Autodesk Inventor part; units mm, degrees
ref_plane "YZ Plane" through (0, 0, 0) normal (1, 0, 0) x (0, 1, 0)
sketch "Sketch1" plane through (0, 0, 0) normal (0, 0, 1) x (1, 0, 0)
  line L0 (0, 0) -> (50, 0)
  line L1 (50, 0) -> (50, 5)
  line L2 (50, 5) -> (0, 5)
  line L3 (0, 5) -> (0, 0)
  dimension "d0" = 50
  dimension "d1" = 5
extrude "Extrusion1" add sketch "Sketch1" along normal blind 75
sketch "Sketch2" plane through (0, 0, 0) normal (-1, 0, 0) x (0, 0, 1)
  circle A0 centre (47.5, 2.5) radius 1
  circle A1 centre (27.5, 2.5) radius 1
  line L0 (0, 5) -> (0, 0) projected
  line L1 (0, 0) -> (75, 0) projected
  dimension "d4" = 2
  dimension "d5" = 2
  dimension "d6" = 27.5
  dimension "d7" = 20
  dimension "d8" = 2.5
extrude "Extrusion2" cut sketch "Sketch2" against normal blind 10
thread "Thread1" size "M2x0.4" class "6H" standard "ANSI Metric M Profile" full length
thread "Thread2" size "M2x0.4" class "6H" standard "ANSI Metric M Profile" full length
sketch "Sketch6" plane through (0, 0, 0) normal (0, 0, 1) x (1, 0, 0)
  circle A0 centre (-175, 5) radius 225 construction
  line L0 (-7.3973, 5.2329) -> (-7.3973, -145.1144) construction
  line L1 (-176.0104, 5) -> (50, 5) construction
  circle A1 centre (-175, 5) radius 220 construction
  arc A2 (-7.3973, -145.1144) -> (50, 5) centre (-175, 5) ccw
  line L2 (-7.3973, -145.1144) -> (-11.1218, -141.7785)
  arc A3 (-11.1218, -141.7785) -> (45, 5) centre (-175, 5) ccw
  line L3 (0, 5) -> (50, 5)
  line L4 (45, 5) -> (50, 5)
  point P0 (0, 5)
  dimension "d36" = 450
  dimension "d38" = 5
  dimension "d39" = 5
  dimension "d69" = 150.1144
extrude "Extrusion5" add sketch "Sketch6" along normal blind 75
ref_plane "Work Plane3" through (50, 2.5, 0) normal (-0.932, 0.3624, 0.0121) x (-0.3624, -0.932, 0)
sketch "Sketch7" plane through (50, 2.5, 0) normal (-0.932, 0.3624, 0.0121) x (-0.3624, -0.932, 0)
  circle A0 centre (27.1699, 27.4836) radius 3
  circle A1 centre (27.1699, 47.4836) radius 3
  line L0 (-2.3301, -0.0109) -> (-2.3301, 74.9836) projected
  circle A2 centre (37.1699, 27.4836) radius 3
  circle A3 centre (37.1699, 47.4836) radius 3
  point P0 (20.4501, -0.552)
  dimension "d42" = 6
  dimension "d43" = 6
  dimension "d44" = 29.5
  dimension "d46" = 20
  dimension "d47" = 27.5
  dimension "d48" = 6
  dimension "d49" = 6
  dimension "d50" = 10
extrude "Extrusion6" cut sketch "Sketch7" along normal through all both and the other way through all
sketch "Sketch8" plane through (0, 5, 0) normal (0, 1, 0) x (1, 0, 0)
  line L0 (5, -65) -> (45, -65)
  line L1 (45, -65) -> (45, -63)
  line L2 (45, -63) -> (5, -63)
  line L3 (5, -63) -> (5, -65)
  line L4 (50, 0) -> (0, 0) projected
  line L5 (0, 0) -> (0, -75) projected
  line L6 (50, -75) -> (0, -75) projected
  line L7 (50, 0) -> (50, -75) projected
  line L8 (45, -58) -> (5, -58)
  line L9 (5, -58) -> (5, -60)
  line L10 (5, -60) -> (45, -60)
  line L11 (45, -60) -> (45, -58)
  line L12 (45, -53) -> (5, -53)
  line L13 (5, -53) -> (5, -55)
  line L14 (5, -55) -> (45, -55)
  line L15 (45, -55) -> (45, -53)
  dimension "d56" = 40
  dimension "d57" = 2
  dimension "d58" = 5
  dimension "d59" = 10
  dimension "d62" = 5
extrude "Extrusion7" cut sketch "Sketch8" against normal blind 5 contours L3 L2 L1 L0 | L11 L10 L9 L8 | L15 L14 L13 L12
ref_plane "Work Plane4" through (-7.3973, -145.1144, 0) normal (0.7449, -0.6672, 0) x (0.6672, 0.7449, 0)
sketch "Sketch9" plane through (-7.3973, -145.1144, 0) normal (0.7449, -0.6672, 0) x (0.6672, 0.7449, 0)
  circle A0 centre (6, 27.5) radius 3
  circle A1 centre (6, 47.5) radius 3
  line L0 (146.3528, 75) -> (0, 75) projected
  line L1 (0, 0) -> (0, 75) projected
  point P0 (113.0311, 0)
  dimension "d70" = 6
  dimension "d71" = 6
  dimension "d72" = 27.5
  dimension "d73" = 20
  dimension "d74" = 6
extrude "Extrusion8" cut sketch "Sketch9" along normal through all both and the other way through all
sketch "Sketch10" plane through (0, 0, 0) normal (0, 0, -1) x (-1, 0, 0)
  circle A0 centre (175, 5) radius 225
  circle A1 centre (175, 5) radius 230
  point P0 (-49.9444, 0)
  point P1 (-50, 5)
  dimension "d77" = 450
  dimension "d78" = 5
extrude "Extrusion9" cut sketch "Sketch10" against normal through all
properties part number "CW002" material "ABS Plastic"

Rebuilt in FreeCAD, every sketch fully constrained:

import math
import FreeCAD as App
import Part
import Sketcher
from FreeCAD import Vector
Q = App.Units.Quantity


def add_polygon(sketch, points):
    """Adds a closed chain of lines whose ends are joined by coincident constraints."""
    first, n = sketch.GeometryCount, len(points)
    for a, b in zip(points, points[1:] + points[:1]):
        sketch.addGeometry(Part.LineSegment(App.Vector(*a, 0), App.Vector(*b, 0)), False)
    for i in range(n):
        sketch.addConstraint(Sketcher.Constraint("Coincident", first + i, 2, first + (i + 1) % n, 1))

doc = App.newDocument("Part")
body = doc.addObject("PartDesign::Body", "Body")

sketch1 = body.newObject("Sketcher::SketchObject", "Sketch")
sketch1.AttachmentSupport = (doc.getObject("XY_Plane"), [""])
sketch1.MapMode = "FlatFace"
add_polygon(sketch1, [(0, 5), (0, 0), (50, 0), (50, 5)])
sketch1.addConstraint(Sketcher.Constraint("Vertical", 0))
sketch1.addConstraint(Sketcher.Constraint("Horizontal", 1))
sketch1.addConstraint(Sketcher.Constraint("Vertical", 2))
sketch1.addConstraint(Sketcher.Constraint("Horizontal", 3))
sketch1.addConstraint(Sketcher.Constraint("Coincident", 0, 2, -1, 1))
sketch1.addConstraint(Sketcher.Constraint("DistanceX", 1, 1, 1, 2, 50.0))
sketch1.addConstraint(Sketcher.Constraint("DistanceY", 0, 2, 0, 1, 5.0))
pad1 = body.newObject("PartDesign::Pad", "Pad")
pad1.Profile = sketch1
pad1.Length = 75

sketch2 = body.newObject("Sketcher::SketchObject", "Sketch001")
sketch2.AttachmentSupport = (doc.getObject("YZ_Plane"), [""])
sketch2.MapMode = "FlatFace"
sketch2.addGeometry(Part.Circle(Vector(2.5, 47.5, 0), Vector(0, 0, 1), 1), False)
sketch2.addGeometry(Part.Circle(Vector(2.5, 27.5, 0), Vector(0, 0, 1), 1), False)
sketch2.addConstraint(Sketcher.Constraint("Equal", 0, 1))
sketch2.addConstraint(Sketcher.Constraint("Vertical", 0, 3, 1, 3))
sketch2.addConstraint(Sketcher.Constraint("Diameter", 0, 2.0))
sketch2.addConstraint(Sketcher.Constraint("DistanceY", 1, 3, 0, 3, 20.0))
sketch2.addConstraint(Sketcher.Constraint("DistanceX", -1, 1, 0, 3, 2.5))
sketch2.addConstraint(Sketcher.Constraint("DistanceY", -1, 1, 1, 3, 27.5))
pocket1 = body.newObject("PartDesign::Pocket", "Pocket")
pocket1.Profile = sketch2
pocket1.Length = 10
pocket1.Reversed = True

sketch3 = body.newObject("Sketcher::SketchObject", "Sketch002")
sketch3.AttachmentSupport = (doc.getObject("XY_Plane"), [""])
sketch3.MapMode = "FlatFace"
sketch3.addGeometry(Part.LineSegment(Vector(-11, -142, 0), Vector(-7, -145, 0)), False)
sketch3.addGeometry(Part.ArcOfCircle(Part.Circle(Vector(-175, 5, 0), Vector(0, 0, 1), 225), math.radians(-42), math.radians(0)), False)
sketch3.addGeometry(Part.LineSegment(Vector(50, 5, 0), Vector(45, 5, 0)), False)
sketch3.addGeometry(Part.ArcOfCircle(Part.Circle(Vector(-175, 5, 0), Vector(0, 0, 1), 220), math.radians(-42), math.radians(0)), False)
sketch3.addConstraint(Sketcher.Constraint("Coincident", 0, 2, 1, 1))
sketch3.addConstraint(Sketcher.Constraint("Coincident", 1, 2, 2, 1))
sketch3.addConstraint(Sketcher.Constraint("Coincident", 2, 2, 3, 2))
sketch3.addConstraint(Sketcher.Constraint("Coincident", 3, 1, 0, 1))
sketch3.addConstraint(Sketcher.Constraint("Horizontal", 2))
sketch3.addConstraint(Sketcher.Constraint("Coincident", 3, 3, 1, 3))
sketch3.addConstraint(Sketcher.Constraint("Horizontal", 3, 3, 1, 2))
sketch3.addConstraint(Sketcher.Constraint("Radius", 1, 225.0))
sketch3.addConstraint(Sketcher.Constraint("DistanceX", 2, 2, 2, 1, 5.0))
sketch3.addConstraint(Sketcher.Constraint("DistanceY", -1, 1, 1, 3, 5.0))
sketch3.addConstraint(Sketcher.Constraint("DistanceX", 1, 3, -1, 1, 175.0))
sketch3.addConstraint(Sketcher.Constraint("Angle", 0, Q("-41.8497 deg")))
sketch3.addConstraint(Sketcher.Constraint("DistanceY", 0, 2, 1, 3, 150.1144))
pad2 = body.newObject("PartDesign::Pad", "Pad001")
pad2.Profile = sketch3
pad2.Length = 75

sketch4 = body.newObject("Sketcher::SketchObject", "Sketch003")
sketch4.Placement = App.Placement(Vector(50, 2.5, 0), App.Rotation(Vector(-0.362407654, -0.932019684, 0), Vector(0.011276851, -0.004384904, 0.9999268), Vector(-0.931951461, 0.362381126, 0.01209937), "ZXY"))
sketch4.addGeometry(Part.Circle(Vector(27.2, 27.5, 0), Vector(0, 0, 1), 3), False)
sketch4.addGeometry(Part.Circle(Vector(27.2, 47.5, 0), Vector(0, 0, 1), 3), False)
sketch4.addGeometry(Part.Circle(Vector(37.2, 27.5, 0), Vector(0, 0, 1), 3), False)
sketch4.addGeometry(Part.Circle(Vector(37.2, 47.5, 0), Vector(0, 0, 1), 3), False)
sketch4.addConstraint(Sketcher.Constraint("Equal", 0, 1))
sketch4.addConstraint(Sketcher.Constraint("Equal", 1, 2))
sketch4.addConstraint(Sketcher.Constraint("Equal", 2, 3))
sketch4.addConstraint(Sketcher.Constraint("Horizontal", 0, 3, 2, 3))
sketch4.addConstraint(Sketcher.Constraint("Horizontal", 1, 3, 3, 3))
sketch4.addConstraint(Sketcher.Constraint("Vertical", 0, 3, 1, 3))
sketch4.addConstraint(Sketcher.Constraint("Vertical", 2, 3, 3, 3))
sketch4.addConstraint(Sketcher.Constraint("Diameter", 0, 6.0))
sketch4.addConstraint(Sketcher.Constraint("DistanceY", 0, 3, 1, 3, 20.0))
sketch4.addConstraint(Sketcher.Constraint("DistanceX", 0, 3, 2, 3, 10.0))
sketch4.addConstraint(Sketcher.Constraint("DistanceX", -1, 1, 0, 3, 27.17))
sketch4.addConstraint(Sketcher.Constraint("DistanceY", -1, 1, 0, 3, 27.4836))
pocket2 = body.newObject("PartDesign::Pocket", "Pocket001")
pocket2.Profile = sketch4
pocket2.Type = "ThroughAll"
pocket2.Midplane = True

sketch5 = body.newObject("Sketcher::SketchObject", "Sketch004")
sketch5.AttachmentSupport = (doc.getObject("XZ_Plane"), [""])
sketch5.MapMode = "FlatFace"
sketch5.AttachmentOffset = App.Placement(Vector(0, 0, -5), App.Rotation())
add_polygon(sketch5, [(5, 63), (5, 65), (45, 65), (45, 63)])
add_polygon(sketch5, [(45, 60), (45, 58), (5, 58), (5, 60)])
add_polygon(sketch5, [(45, 55), (45, 53), (5, 53), (5, 55)])
sketch5.addConstraint(Sketcher.Constraint("Vertical", 0))
sketch5.addConstraint(Sketcher.Constraint("Horizontal", 1))
sketch5.addConstraint(Sketcher.Constraint("Vertical", 2))
sketch5.addConstraint(Sketcher.Constraint("Horizontal", 3))
sketch5.addConstraint(Sketcher.Constraint("Vertical", 4))
sketch5.addConstraint(Sketcher.Constraint("Horizontal", 5))
sketch5.addConstraint(Sketcher.Constraint("Vertical", 6))
sketch5.addConstraint(Sketcher.Constraint("Horizontal", 7))
sketch5.addConstraint(Sketcher.Constraint("Vertical", 8))
sketch5.addConstraint(Sketcher.Constraint("Horizontal", 9))
sketch5.addConstraint(Sketcher.Constraint("Vertical", 10))
sketch5.addConstraint(Sketcher.Constraint("Horizontal", 11))
sketch5.addConstraint(Sketcher.Constraint("Vertical", 2, 2, 4, 2))
sketch5.addConstraint(Sketcher.Constraint("Vertical", 3, 2, 5, 2))
sketch5.addConstraint(Sketcher.Constraint("Vertical", 7, 2, 8, 2))
sketch5.addConstraint(Sketcher.Constraint("Vertical", 6, 2, 9, 2))
sketch5.addConstraint(Sketcher.Constraint("Equal", 2, 4))
sketch5.addConstraint(Sketcher.Constraint("Equal", 6, 8))
sketch5.addConstraint(Sketcher.Constraint("DistanceX", 1, 1, 1, 2, 40.0))
sketch5.addConstraint(Sketcher.Constraint("DistanceY", 0, 1, 0, 2, 2.0))
sketch5.addConstraint(Sketcher.Constraint("DistanceX", -1, 1, 0, 2, 5.0))
sketch5.addConstraint(Sketcher.Constraint("DistanceY", 4, 2, 2, 2, 5.0))
sketch5.addConstraint(Sketcher.Constraint("DistanceY", 8, 2, 4, 2, 5.0))
sketch5.addConstraint(Sketcher.Constraint("DistanceY", -1, 1, 0, 2, 65.0))
pocket3 = body.newObject("PartDesign::Pocket", "Pocket002")
pocket3.Profile = sketch5
pocket3.Length = 5
pocket3.Reversed = True

sketch6 = body.newObject("Sketcher::SketchObject", "Sketch005")
sketch6.Placement = App.Placement(Vector(-7.3973, -145.1144, 0), App.Rotation(Vector(0.667189375, 0.744888138, 0), Vector(0, 0, 1), Vector(0.744888138, -0.667189375, 0), "ZXY"))
sketch6.addGeometry(Part.Circle(Vector(6, 27.5, 0), Vector(0, 0, 1), 3), False)
sketch6.addGeometry(Part.Circle(Vector(6, 47.5, 0), Vector(0, 0, 1), 3), False)
sketch6.addConstraint(Sketcher.Constraint("Equal", 0, 1))
sketch6.addConstraint(Sketcher.Constraint("Vertical", 0, 3, 1, 3))
sketch6.addConstraint(Sketcher.Constraint("Diameter", 0, 6.0))
sketch6.addConstraint(Sketcher.Constraint("DistanceX", -1, 1, 0, 3, 6.0))
sketch6.addConstraint(Sketcher.Constraint("DistanceY", 0, 3, 1, 3, 20.0))
sketch6.addConstraint(Sketcher.Constraint("DistanceY", -1, 1, 0, 3, 27.5))
pocket4 = body.newObject("PartDesign::Pocket", "Pocket003")
pocket4.Profile = sketch6
pocket4.Type = "ThroughAll"
pocket4.Midplane = True

sketch7 = body.newObject("Sketcher::SketchObject", "Sketch006")
sketch7.AttachmentSupport = (doc.getObject("XY_Plane"), [""])
sketch7.MapMode = "FlatFace"
sketch7.addGeometry(Part.Circle(Vector(-175, 5, 0), Vector(0, 0, 1), 230), False)
sketch7.addGeometry(Part.Circle(Vector(-175, 5, 0), Vector(0, 0, 1), 225), False)
sketch7.addConstraint(Sketcher.Constraint("Coincident", 1, 3, 0, 3))
sketch7.addConstraint(Sketcher.Constraint("Diameter", 1, 450.0))
sketch7.addConstraint(Sketcher.Constraint("Diameter", 0, 460.0))
sketch7.addConstraint(Sketcher.Constraint("DistanceY", -1, 1, 0, 3, 5.0))
sketch7.addConstraint(Sketcher.Constraint("DistanceX", 0, 3, -1, 1, 175.0))
pocket5 = body.newObject("PartDesign::Pocket", "Pocket004")
pocket5.Profile = sketch7
pocket5.Type = "ThroughAll"
pocket5.Reversed = True

doc.recompute()
